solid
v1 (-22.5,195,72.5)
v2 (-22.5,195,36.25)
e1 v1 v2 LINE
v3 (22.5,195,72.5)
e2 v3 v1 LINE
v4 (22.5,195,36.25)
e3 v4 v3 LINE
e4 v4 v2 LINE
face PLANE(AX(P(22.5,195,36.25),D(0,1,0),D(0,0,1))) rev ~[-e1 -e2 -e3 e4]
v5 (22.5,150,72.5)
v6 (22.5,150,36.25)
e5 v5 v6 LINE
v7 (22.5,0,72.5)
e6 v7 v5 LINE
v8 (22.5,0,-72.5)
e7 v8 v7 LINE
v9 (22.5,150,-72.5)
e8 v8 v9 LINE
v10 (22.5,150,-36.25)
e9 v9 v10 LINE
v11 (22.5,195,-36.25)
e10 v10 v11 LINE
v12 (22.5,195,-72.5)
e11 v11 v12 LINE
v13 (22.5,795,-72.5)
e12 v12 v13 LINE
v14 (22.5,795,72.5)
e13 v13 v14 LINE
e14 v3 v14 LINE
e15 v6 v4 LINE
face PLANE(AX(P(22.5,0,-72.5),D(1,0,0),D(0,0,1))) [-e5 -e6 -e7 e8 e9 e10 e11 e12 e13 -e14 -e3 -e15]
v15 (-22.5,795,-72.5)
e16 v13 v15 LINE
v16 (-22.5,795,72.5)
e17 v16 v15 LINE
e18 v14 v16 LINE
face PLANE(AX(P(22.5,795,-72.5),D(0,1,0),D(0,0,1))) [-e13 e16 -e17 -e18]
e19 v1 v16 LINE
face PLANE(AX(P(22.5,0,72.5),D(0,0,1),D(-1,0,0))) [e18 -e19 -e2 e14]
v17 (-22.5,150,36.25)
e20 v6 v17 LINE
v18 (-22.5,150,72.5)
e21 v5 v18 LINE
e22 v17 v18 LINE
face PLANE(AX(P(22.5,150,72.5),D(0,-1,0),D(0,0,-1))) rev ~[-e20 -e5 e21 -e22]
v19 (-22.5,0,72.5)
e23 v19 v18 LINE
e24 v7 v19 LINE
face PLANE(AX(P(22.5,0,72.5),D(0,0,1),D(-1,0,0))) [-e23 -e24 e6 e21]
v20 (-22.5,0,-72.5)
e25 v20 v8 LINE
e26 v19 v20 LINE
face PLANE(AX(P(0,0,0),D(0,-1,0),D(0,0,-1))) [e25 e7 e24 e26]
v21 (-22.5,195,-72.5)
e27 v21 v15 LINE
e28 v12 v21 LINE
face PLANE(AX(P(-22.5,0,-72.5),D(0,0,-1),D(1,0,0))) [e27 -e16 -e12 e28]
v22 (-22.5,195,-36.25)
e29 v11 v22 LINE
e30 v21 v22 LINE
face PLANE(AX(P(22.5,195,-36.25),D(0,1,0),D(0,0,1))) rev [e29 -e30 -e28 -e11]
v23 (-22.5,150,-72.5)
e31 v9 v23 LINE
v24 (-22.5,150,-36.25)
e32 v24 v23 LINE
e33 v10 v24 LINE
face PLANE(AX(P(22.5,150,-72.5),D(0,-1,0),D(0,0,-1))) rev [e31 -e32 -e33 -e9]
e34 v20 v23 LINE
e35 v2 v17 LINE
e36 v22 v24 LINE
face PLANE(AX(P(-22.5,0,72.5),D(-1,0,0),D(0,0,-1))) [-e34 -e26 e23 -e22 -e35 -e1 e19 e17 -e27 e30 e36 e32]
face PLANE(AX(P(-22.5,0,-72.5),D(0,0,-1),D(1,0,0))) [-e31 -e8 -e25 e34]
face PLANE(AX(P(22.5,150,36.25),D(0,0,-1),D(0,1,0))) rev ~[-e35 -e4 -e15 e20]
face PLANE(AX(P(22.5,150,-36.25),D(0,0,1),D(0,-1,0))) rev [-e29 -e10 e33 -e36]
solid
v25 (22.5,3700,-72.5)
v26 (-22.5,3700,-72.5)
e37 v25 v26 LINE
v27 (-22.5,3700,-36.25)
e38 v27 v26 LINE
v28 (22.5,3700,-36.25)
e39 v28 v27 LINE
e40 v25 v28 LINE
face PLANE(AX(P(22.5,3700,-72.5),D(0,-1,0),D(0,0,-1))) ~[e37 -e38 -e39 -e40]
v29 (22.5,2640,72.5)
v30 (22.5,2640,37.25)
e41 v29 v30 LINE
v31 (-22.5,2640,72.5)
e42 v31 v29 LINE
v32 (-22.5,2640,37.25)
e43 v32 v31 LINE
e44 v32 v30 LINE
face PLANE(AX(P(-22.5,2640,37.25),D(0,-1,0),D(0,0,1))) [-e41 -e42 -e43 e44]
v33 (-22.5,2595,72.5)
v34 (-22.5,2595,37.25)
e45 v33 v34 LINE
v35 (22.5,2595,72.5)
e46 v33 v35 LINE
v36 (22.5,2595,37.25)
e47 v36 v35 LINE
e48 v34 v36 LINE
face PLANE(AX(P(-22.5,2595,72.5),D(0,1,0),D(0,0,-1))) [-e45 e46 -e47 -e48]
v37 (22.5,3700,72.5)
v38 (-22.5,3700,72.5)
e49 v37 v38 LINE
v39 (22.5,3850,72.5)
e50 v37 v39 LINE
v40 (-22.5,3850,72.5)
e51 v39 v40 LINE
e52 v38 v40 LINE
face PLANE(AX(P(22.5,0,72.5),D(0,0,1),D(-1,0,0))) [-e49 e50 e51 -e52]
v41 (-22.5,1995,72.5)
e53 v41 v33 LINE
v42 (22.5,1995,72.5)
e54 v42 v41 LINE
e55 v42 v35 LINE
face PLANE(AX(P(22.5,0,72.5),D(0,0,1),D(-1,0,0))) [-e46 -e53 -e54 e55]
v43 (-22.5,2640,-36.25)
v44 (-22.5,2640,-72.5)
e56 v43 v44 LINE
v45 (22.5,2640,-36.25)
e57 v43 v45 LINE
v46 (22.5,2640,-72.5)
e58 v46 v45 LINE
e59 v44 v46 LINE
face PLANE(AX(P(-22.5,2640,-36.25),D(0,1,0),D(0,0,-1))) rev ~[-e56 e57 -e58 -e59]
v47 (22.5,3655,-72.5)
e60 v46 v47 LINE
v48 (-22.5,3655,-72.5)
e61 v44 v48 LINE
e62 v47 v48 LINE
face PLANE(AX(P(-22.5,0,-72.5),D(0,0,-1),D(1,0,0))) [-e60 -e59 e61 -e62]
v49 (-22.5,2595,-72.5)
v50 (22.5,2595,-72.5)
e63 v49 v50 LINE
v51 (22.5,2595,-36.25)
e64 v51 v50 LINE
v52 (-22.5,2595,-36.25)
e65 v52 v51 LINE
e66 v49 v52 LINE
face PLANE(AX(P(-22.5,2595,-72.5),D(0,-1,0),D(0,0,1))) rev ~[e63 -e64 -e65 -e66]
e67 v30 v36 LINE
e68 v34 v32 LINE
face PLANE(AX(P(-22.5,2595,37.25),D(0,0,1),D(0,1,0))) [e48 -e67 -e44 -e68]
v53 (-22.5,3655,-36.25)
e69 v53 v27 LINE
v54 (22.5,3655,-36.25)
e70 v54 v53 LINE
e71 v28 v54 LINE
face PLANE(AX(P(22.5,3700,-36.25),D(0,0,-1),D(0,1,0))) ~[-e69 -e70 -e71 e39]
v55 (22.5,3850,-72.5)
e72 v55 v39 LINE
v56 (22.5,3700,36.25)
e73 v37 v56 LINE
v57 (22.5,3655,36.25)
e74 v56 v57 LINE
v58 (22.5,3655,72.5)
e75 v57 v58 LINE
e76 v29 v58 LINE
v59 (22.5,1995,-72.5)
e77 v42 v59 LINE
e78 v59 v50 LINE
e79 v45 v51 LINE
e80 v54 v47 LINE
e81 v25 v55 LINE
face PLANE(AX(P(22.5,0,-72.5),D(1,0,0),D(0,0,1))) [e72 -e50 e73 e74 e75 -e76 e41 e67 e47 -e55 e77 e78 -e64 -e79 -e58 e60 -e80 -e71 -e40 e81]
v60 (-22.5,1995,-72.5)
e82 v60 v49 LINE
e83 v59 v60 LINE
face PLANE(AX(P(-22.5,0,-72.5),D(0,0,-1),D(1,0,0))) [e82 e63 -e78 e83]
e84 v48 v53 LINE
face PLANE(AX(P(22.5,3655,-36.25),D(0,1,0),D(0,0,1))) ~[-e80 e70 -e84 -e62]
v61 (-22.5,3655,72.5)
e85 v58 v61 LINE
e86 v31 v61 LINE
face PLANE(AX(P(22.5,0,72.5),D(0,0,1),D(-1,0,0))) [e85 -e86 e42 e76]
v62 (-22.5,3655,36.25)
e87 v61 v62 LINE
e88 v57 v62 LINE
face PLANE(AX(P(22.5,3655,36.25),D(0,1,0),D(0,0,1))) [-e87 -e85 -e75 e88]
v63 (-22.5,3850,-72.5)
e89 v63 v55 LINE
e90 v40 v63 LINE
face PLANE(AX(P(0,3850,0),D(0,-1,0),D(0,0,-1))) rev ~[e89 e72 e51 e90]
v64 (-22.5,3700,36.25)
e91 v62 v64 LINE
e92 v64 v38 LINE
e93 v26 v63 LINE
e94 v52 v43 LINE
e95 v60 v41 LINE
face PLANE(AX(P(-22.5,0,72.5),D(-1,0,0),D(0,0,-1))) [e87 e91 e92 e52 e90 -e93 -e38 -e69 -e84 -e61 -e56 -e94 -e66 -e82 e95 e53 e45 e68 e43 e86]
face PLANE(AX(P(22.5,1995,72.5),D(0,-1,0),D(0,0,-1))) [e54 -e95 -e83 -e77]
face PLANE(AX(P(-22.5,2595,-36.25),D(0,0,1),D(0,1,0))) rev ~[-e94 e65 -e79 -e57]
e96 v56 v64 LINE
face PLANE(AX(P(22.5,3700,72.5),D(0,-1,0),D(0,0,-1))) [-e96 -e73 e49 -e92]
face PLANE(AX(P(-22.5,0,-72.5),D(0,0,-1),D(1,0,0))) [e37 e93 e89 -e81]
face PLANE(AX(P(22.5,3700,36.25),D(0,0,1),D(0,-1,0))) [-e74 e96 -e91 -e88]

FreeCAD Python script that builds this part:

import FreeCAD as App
import Part
import Sketcher

V = App.Vector
Q = App.Units.Quantity


def add_polygon(sketch, points):
    """Adds a closed chain of lines whose ends are joined by coincident constraints."""
    first, n = sketch.GeometryCount, len(points)
    for a, b in zip(points, points[1:] + points[:1]):
        sketch.addGeometry(Part.LineSegment(App.Vector(*a, 0), App.Vector(*b, 0)), False)
    for i in range(n):
        sketch.addConstraint(Sketcher.Constraint("Coincident", first + i, 2, first + (i + 1) % n, 1))

doc = App.newDocument("Part")
body = doc.addObject("PartDesign::Body", "Body")
body.AllowCompound = True

# Sketch on XZ plane
sketch1 = doc.addObject("Sketcher::SketchObject", "Sketch")
body.addObject(sketch1)
sketch1.AttachmentSupport = (doc.XZ_Plane, [""])
sketch1.MapMode = "FlatFace"
add_polygon(sketch1, [(-22.5, 72.5), (-22.5, -72.5), (22.5, -72.5), (22.5, 72.5)])  # lines 0-3
sketch1.addConstraint([
    Sketcher.Constraint("Vertical", 0),
    Sketcher.Constraint("Horizontal", 1),
    Sketcher.Constraint("Vertical", 2),
    Sketcher.Constraint("Horizontal", 3),
    Sketcher.Constraint("Symmetric", 0, 2, 2, 2, -1, 1),
    Sketcher.Constraint("DistanceX", 1, 1, 1, 2, Q("45 mm")),
    Sketcher.Constraint("DistanceY", 0, 2, 0, 1, Q("145 mm")),
])
pad1 = doc.addObject("PartDesign::Pad", "Pad")
body.addObject(pad1)
pad1.Profile = sketch1
pad1.Length = 3850
pad1.Reversed = True

# Sketch on YZ plane
sketch2 = doc.addObject("Sketcher::SketchObject", "Sketch001")
body.addObject(sketch2)
sketch2.AttachmentSupport = (doc.YZ_Plane, [""])
sketch2.MapMode = "FlatFace"
sketch2.AttachmentOffset = App.Placement(V(0, 0, 22.5), App.Rotation())
add_polygon(sketch2, [(3700, 36.25), (3700, 72.5), (3655, 72.5), (3655, 36.25)])  # lines 0-3
add_polygon(sketch2, [(195, 72.5), (150, 72.5), (150, 36.25), (195, 36.25)])  # lines 4-7
sketch2.addConstraint([
    Sketcher.Constraint("Vertical", 0),
    Sketcher.Constraint("Horizontal", 1),
    Sketcher.Constraint("Vertical", 2),
    Sketcher.Constraint("Horizontal", 3),
    Sketcher.Constraint("Horizontal", 4),
    Sketcher.Constraint("Vertical", 5),
    Sketcher.Constraint("Horizontal", 6),
    Sketcher.Constraint("Vertical", 7),
    Sketcher.Constraint("Horizontal", 1, 2, 4, 2),
    Sketcher.Constraint("Horizontal", 3, 2, 5, 2),
    Sketcher.Constraint("Equal", 3, 4),
    Sketcher.Constraint("DistanceX", 1, 2, 1, 1, Q("45 mm")),
    Sketcher.Constraint("DistanceX", -1, 1, 0, 2, Q("3700 mm")),
    Sketcher.Constraint("DistanceX", -1, 1, 4, 2, Q("150 mm")),
    Sketcher.Constraint("DistanceY", 0, 1, 0, 2, Q("36.25 mm")),
    Sketcher.Constraint("DistanceY", -1, 1, 0, 2, Q("72.5 mm")),
])
pocket1 = doc.addObject("PartDesign::Pocket", "Pocket")
body.addObject(pocket1)
pocket1.Profile = sketch2
pocket1.Length = 86.6929
doc.recompute()

mirrored = doc.addObject("PartDesign::Mirrored", "Mirrored")
body.addObject(mirrored)
mirrored.Originals = [pocket1]
mirrored.MirrorPlane = (doc.XY_Plane, [""])
body.Tip = mirrored

# Sketch on YZ plane
sketch3 = doc.addObject("Sketcher::SketchObject", "Sketch002")
body.addObject(sketch3)
sketch3.AttachmentSupport = (doc.YZ_Plane, [""])
sketch3.MapMode = "FlatFace"
sketch3.AttachmentOffset = App.Placement(V(0, 0, -22.5), App.Rotation())
add_polygon(sketch3, [(2595, 37.25), (2595, 72.5), (2640, 72.5), (2640, 37.25)])  # lines 0-3
add_polygon(sketch3, [(2640, -36.25), (2640, -72.5), (2595, -72.5), (2595, -36.25)])  # lines 4-7
sketch3.addConstraint([
    Sketcher.Constraint("Vertical", 0),
    Sketcher.Constraint("Horizontal", 1),
    Sketcher.Constraint("Vertical", 2),
    Sketcher.Constraint("Horizontal", 3),
    Sketcher.Constraint("Vertical", 4),
    Sketcher.Constraint("Horizontal", 5),
    Sketcher.Constraint("Vertical", 6),
    Sketcher.Constraint("Horizontal", 7),
    Sketcher.Constraint("Symmetric", 1, 2, 4, 2, -1),
    Sketcher.Constraint("Vertical", 3, 2, 5, 2),
    Sketcher.Constraint("DistanceX", 1, 1, 1, 2, Q("45 mm")),
    Sketcher.Constraint("DistanceX", -1, 1, 0, 2, Q("2595 mm")),
    Sketcher.Constraint("DistanceY", 4, 2, 1, 2, Q("145 mm")),
    Sketcher.Constraint("DistanceY", 0, 1, 0, 2, Q("35.25 mm")),
    Sketcher.Constraint("DistanceY", 4, 2, 4, 1, Q("36.25 mm")),
])
pocket2 = doc.addObject("PartDesign::Pocket", "Pocket001")
body.addObject(pocket2)
pocket2.Profile = sketch3
pocket2.Length = 78.7482
pocket2.Reversed = True

# Sketch on YZ plane
sketch4 = doc.addObject("Sketcher::SketchObject", "Sketch003")
body.addObject(sketch4)
sketch4.AttachmentSupport = (doc.YZ_Plane, [""])
sketch4.MapMode = "FlatFace"
sketch4.AttachmentOffset = App.Placement(V(0, 0, 22.5), App.Rotation())
add_polygon(sketch4, [(1995, 72.5), (795, 72.5), (795, -72.5), (1995, -72.5)])  # lines 0-3
sketch4.addConstraint([
    Sketcher.Constraint("Horizontal", 0),
    Sketcher.Constraint("Vertical", 1),
    Sketcher.Constraint("Horizontal", 2),
    Sketcher.Constraint("Vertical", 3),
    Sketcher.Constraint("DistanceX", 0, 2, 0, 1, Q("1200 mm")),
    Sketcher.Constraint("DistanceY", 1, 2, 1, 1, Q("145 mm")),
    Sketcher.Constraint("DistanceX", -1, 1, 0, 2, Q("795 mm")),
    Sketcher.Constraint("DistanceY", -1, 1, 0, 2, Q("72.5 mm")),
])
pocket3 = doc.addObject("PartDesign::Pocket", "Pocket002")
body.addObject(pocket3)
pocket3.Profile = sketch4
pocket3.Length = 117.5606

doc.recompute()
